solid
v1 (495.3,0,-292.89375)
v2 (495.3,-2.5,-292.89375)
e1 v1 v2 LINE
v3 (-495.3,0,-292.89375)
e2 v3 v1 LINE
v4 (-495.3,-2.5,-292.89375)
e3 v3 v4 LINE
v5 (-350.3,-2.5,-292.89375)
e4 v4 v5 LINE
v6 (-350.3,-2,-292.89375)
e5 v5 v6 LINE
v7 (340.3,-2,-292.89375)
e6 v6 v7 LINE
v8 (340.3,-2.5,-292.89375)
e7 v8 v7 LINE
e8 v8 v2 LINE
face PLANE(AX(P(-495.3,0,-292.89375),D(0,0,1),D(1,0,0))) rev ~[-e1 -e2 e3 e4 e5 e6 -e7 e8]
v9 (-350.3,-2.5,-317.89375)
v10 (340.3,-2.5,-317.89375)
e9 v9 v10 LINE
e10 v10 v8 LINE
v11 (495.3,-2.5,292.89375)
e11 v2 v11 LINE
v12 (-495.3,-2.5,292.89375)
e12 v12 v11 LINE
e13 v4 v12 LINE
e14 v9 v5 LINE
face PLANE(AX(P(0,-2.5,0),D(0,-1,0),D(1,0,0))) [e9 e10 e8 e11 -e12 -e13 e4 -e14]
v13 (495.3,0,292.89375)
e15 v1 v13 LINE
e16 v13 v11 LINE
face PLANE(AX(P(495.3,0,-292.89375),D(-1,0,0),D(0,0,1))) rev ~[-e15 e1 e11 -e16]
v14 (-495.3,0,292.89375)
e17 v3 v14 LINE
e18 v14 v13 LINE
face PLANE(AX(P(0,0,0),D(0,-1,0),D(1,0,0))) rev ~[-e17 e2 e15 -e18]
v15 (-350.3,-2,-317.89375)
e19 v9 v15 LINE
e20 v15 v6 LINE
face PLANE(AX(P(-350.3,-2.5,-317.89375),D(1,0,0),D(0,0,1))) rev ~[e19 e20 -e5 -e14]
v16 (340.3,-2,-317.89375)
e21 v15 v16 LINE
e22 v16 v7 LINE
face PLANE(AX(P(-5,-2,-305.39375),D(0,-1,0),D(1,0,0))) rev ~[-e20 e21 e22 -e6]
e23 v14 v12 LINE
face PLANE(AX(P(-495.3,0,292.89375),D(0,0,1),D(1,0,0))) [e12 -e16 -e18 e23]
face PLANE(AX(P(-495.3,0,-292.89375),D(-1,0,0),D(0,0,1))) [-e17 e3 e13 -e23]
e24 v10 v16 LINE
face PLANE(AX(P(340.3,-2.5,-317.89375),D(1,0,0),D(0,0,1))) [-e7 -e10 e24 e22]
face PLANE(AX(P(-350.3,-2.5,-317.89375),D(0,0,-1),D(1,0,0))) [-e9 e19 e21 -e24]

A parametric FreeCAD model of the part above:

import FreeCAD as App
import Part
import Sketcher
from FreeCAD import Vector


def add_polygon(sketch, points):
    """Adds a closed chain of lines whose ends are joined by coincident constraints."""
    first, n = sketch.GeometryCount, len(points)
    for a, b in zip(points, points[1:] + points[:1]):
        sketch.addGeometry(Part.LineSegment(App.Vector(*a, 0), App.Vector(*b, 0)), False)
    for i in range(n):
        sketch.addConstraint(Sketcher.Constraint("Coincident", first + i, 2, first + (i + 1) % n, 1))

doc = App.newDocument("Part")
params = doc.addObject("Spreadsheet::Sheet", "Params")
for row, (alias, value) in enumerate([
    ("sketch1_width", "990.6 mm"),
    ("pad1_length", "2.5 mm"),
    ("sketch2_height", "25 mm"),
    ("sketch2_width", "690.6 mm"),
    ("pad2_length", "0.5 mm"),
], start=1):
    params.set(f"A{row}", alias)
    params.set(f"B{row}", "=" + value)
    params.setAlias(f"B{row}", alias)

body = doc.addObject("PartDesign::Body", "Body")

# Sketch on XZ plane
sketch1 = doc.addObject("Sketcher::SketchObject", "Sketch")
body.addObject(sketch1)
sketch1.AttachmentSupport = (doc.XZ_Plane, [""])
sketch1.MapMode = "FlatFace"
add_polygon(sketch1, [(-495.3, 292.89375), (-495.3, -292.89375), (495.3, -292.89375), (495.3, 292.89375)])  # lines 0-3
sketch1.addConstraint([
    Sketcher.Constraint("Vertical", 0),
    Sketcher.Constraint("Horizontal", 1),
    Sketcher.Constraint("Vertical", 2),
    Sketcher.Constraint("Horizontal", 3),
    Sketcher.Constraint("Symmetric", 0, 2, 2, 2, -1, 1),
    Sketcher.Constraint("DistanceX", 1, 1, 1, 2, 990.6),
    Sketcher.Constraint("DistanceY", 0, 2, 0, 1, 585.7875),
])
sketch1.setExpression("Constraints[9]", "Params.sketch1_width")
pad1 = doc.addObject("PartDesign::Pad", "Pad")
body.addObject(pad1)
pad1.Profile = sketch1
pad1.setExpression("Length", "Params.pad1_length")

# Sketch on XZ plane
sketch2 = doc.addObject("Sketcher::SketchObject", "Sketch001")
body.addObject(sketch2)
sketch2.AttachmentSupport = (doc.XZ_Plane, [""])
sketch2.MapMode = "FlatFace"
sketch2.AttachmentOffset = App.Placement(Vector(0, 0, 2.5), App.Rotation())
add_polygon(sketch2, [(-350.3, -292.89375), (-350.3, -317.89375), (340.3, -317.89375), (340.3, -292.89375)])  # lines 0-3
sketch2.addConstraint([
    Sketcher.Constraint("Vertical", 0),
    Sketcher.Constraint("Horizontal", 1),
    Sketcher.Constraint("Vertical", 2),
    Sketcher.Constraint("Horizontal", 3),
    Sketcher.Constraint("DistanceY", 0, 2, 0, 1, 25.0),
    Sketcher.Constraint("DistanceX", 1, 1, 1, 2, 690.6),
    Sketcher.Constraint("DistanceX", 0, 2, -1, 1, 350.3),
    Sketcher.Constraint("DistanceY", 0, 2, -1, 1, 317.89375),
])
sketch2.setExpression("Constraints[8]", "Params.sketch2_height")
sketch2.setExpression("Constraints[9]", "Params.sketch2_width")
pad2 = doc.addObject("PartDesign::Pad", "Pad001")
body.addObject(pad2)
pad2.Profile = sketch2
pad2.setExpression("Length", "Params.pad2_length")
pad2.Reversed = True

doc.recompute()
